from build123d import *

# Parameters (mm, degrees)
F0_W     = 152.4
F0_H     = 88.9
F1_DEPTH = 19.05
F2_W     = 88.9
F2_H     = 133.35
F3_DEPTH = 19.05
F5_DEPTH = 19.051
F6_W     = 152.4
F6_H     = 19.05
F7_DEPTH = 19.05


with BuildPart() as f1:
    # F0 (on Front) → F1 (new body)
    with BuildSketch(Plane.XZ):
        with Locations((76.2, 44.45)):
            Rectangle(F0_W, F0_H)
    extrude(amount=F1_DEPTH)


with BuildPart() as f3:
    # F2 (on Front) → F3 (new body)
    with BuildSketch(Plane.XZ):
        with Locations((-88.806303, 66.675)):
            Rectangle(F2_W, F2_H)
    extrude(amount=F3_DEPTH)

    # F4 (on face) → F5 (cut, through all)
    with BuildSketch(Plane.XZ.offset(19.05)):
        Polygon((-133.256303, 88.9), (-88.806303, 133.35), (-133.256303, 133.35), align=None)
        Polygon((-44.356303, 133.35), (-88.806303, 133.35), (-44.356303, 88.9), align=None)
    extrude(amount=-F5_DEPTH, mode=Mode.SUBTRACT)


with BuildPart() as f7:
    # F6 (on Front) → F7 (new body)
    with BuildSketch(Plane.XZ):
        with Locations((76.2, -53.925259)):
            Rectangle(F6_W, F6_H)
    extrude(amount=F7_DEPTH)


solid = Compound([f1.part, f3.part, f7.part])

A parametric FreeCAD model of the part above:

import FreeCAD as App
import Part
import Sketcher
Q = App.Units.Quantity

doc = App.newDocument("Part")
body = doc.addObject("PartDesign::Body", "Body")

sketch1 = body.newObject("Sketcher::SketchObject", "Sketch")
sketch1.AttachmentSupport = (doc.getObject("XZ_Plane"), [""])
sketch1.MapMode = "FlatFace"
sketch1.addGeometry(Part.LineSegment(App.Vector(0, 89, 0), App.Vector(0, 0, 0)), False)
sketch1.addGeometry(Part.LineSegment(App.Vector(0, 0, 0), App.Vector(152, 0, 0)), False)
sketch1.addGeometry(Part.LineSegment(App.Vector(152, 0, 0), App.Vector(152, 89, 0)), False)
sketch1.addGeometry(Part.LineSegment(App.Vector(152, 89, 0), App.Vector(0, 89, 0)), False)
sketch1.addConstraint(Sketcher.Constraint("Coincident", 0, 2, 1, 1))
sketch1.addConstraint(Sketcher.Constraint("Coincident", 1, 2, 2, 1))
sketch1.addConstraint(Sketcher.Constraint("Coincident", 2, 2, 3, 1))
sketch1.addConstraint(Sketcher.Constraint("Coincident", 3, 2, 0, 1))
sketch1.addConstraint(Sketcher.Constraint("Vertical", 0))
sketch1.addConstraint(Sketcher.Constraint("Horizontal", 1))
sketch1.addConstraint(Sketcher.Constraint("Vertical", 2))
sketch1.addConstraint(Sketcher.Constraint("Horizontal", 3))
sketch1.addConstraint(Sketcher.Constraint("Coincident", 0, 2, -1, 1))
sketch1.addConstraint(Sketcher.Constraint("DistanceX", 1, 1, 1, 2, Q("6 in")))
sketch1.addConstraint(Sketcher.Constraint("DistanceY", 0, 2, 0, 1, Q("3.5 in")))
pad1 = body.newObject("PartDesign::Pad", "Pad")
pad1.Profile = sketch1
pad1.Length = Q("0.75 in")
body2 = doc.addObject("PartDesign::Body", "Body001")

sketch2 = body2.newObject("Sketcher::SketchObject", "Sketch001")
sketch2.AttachmentSupport = (doc.getObject("XZ_Plane001"), [""])
sketch2.MapMode = "FlatFace"
sketch2.addGeometry(Part.LineSegment(App.Vector(-133, 133, 0), App.Vector(-133, 0, 0)), False)
sketch2.addGeometry(Part.LineSegment(App.Vector(-133, 0, 0), App.Vector(-44, 0, 0)), False)
sketch2.addGeometry(Part.LineSegment(App.Vector(-44, 0, 0), App.Vector(-44, 133, 0)), False)
sketch2.addGeometry(Part.LineSegment(App.Vector(-44, 133, 0), App.Vector(-133, 133, 0)), False)
sketch2.addConstraint(Sketcher.Constraint("Coincident", 0, 2, 1, 1))
sketch2.addConstraint(Sketcher.Constraint("Coincident", 1, 2, 2, 1))
sketch2.addConstraint(Sketcher.Constraint("Coincident", 2, 2, 3, 1))
sketch2.addConstraint(Sketcher.Constraint("Coincident", 3, 2, 0, 1))
sketch2.addConstraint(Sketcher.Constraint("Vertical", 0))
sketch2.addConstraint(Sketcher.Constraint("Horizontal", 1))
sketch2.addConstraint(Sketcher.Constraint("Vertical", 2))
sketch2.addConstraint(Sketcher.Constraint("Horizontal", 3))
sketch2.addConstraint(Sketcher.Constraint("PointOnObject", 0, 2, -1))
sketch2.addConstraint(Sketcher.Constraint("DistanceX", 1, 1, 1, 2, Q("3.5 in")))
sketch2.addConstraint(Sketcher.Constraint("DistanceY", 0, 2, 0, 1, Q("5.25 in")))
sketch2.addConstraint(Sketcher.Constraint("DistanceX", 0, 2, -1, 1, Q("133.256303 mm")))
pad2 = body2.newObject("PartDesign::Pad", "Pad001")
pad2.Profile = sketch2
pad2.Length = Q("0.75 in")

sketch3 = body2.newObject("Sketcher::SketchObject", "Sketch002")
sketch3.AttachmentSupport = (doc.getObject("XZ_Plane001"), [""])
sketch3.MapMode = "FlatFace"
sketch3.AttachmentOffset = App.Placement(App.Vector(0, 0, 0.75 * 25.4), App.Rotation())
sketch3.addGeometry(Part.LineSegment(App.Vector(-133, 89, 0), App.Vector(-89, 133, 0)), False)
sketch3.addGeometry(Part.LineSegment(App.Vector(-89, 133, 0), App.Vector(-133, 133, 0)), False)
sketch3.addGeometry(Part.LineSegment(App.Vector(-133, 133, 0), App.Vector(-133, 89, 0)), False)
sketch3.addGeometry(Part.LineSegment(App.Vector(-44, 133, 0), App.Vector(-89, 133, 0)), False)
sketch3.addGeometry(Part.LineSegment(App.Vector(-89, 133, 0), App.Vector(-44, 89, 0)), False)
sketch3.addGeometry(Part.LineSegment(App.Vector(-44, 89, 0), App.Vector(-44, 133, 0)), False)
sketch3.addConstraint(Sketcher.Constraint("Coincident", 0, 2, 1, 1))
sketch3.addConstraint(Sketcher.Constraint("Coincident", 1, 2, 2, 1))
sketch3.addConstraint(Sketcher.Constraint("Coincident", 2, 2, 0, 1))
sketch3.addConstraint(Sketcher.Constraint("Coincident", 3, 2, 4, 1))
sketch3.addConstraint(Sketcher.Constraint("Coincident", 4, 2, 5, 1))
sketch3.addConstraint(Sketcher.Constraint("Coincident", 5, 2, 3, 1))
sketch3.addConstraint(Sketcher.Constraint("Horizontal", 1))
sketch3.addConstraint(Sketcher.Constraint("Vertical", 2))
sketch3.addConstraint(Sketcher.Constraint("Horizontal", 3))
sketch3.addConstraint(Sketcher.Constraint("Vertical", 5))
sketch3.addConstraint(Sketcher.Constraint("Coincident", 3, 2, 0, 2))
sketch3.addConstraint(Sketcher.Constraint("Perpendicular", 0, 4))
sketch3.addConstraint(Sketcher.Constraint("Horizontal", 2, 2, 4, 2))
sketch3.addConstraint(Sketcher.Constraint("Equal", 1, 3))
sketch3.addConstraint(Sketcher.Constraint("DistanceX", 1, 2, 1, 1, Q("1.75 in")))
sketch3.addConstraint(Sketcher.Constraint("DistanceY", -1, 1, 2, 2, Q("3.5 in")))
sketch3.addConstraint(Sketcher.Constraint("DistanceX", 0, 2, -1, 1, Q("88.806303 mm")))
pocket1 = body2.newObject("PartDesign::Pocket", "Pocket")
pocket1.Profile = sketch3
pocket1.Type = "ThroughAll"
body3 = doc.addObject("PartDesign::Body", "Body002")

sketch4 = body3.newObject("Sketcher::SketchObject", "Sketch003")
sketch4.AttachmentSupport = (doc.getObject("XZ_Plane002"), [""])
sketch4.MapMode = "FlatFace"
sketch4.addGeometry(Part.LineSegment(App.Vector(0, -44, 0), App.Vector(0, -63, 0)), False)
sketch4.addGeometry(Part.LineSegment(App.Vector(0, -63, 0), App.Vector(152, -63, 0)), False)
sketch4.addGeometry(Part.LineSegment(App.Vector(152, -63, 0), App.Vector(152, -44, 0)), False)
sketch4.addGeometry(Part.LineSegment(App.Vector(152, -44, 0), App.Vector(0, -44, 0)), False)
sketch4.addConstraint(Sketcher.Constraint("Coincident", 0, 2, 1, 1))
sketch4.addConstraint(Sketcher.Constraint("Coincident", 1, 2, 2, 1))
sketch4.addConstraint(Sketcher.Constraint("Coincident", 2, 2, 3, 1))
sketch4.addConstraint(Sketcher.Constraint("Coincident", 3, 2, 0, 1))
sketch4.addConstraint(Sketcher.Constraint("Vertical", 0))
sketch4.addConstraint(Sketcher.Constraint("Horizontal", 1))
sketch4.addConstraint(Sketcher.Constraint("Vertical", 2))
sketch4.addConstraint(Sketcher.Constraint("Horizontal", 3))
sketch4.addConstraint(Sketcher.Constraint("PointOnObject", 0, 2, -2))
sketch4.addConstraint(Sketcher.Constraint("DistanceX", 1, 1, 1, 2, Q("6 in")))
sketch4.addConstraint(Sketcher.Constraint("DistanceY", 0, 2, 0, 1, Q("0.75 in")))
sketch4.addConstraint(Sketcher.Constraint("DistanceY", 0, 2, -1, 1, Q("63.450259 mm")))
pad3 = body3.newObject("PartDesign::Pad", "Pad002")
pad3.Profile = sketch4
pad3.Length = Q("0.75 in")

doc.recompute()
